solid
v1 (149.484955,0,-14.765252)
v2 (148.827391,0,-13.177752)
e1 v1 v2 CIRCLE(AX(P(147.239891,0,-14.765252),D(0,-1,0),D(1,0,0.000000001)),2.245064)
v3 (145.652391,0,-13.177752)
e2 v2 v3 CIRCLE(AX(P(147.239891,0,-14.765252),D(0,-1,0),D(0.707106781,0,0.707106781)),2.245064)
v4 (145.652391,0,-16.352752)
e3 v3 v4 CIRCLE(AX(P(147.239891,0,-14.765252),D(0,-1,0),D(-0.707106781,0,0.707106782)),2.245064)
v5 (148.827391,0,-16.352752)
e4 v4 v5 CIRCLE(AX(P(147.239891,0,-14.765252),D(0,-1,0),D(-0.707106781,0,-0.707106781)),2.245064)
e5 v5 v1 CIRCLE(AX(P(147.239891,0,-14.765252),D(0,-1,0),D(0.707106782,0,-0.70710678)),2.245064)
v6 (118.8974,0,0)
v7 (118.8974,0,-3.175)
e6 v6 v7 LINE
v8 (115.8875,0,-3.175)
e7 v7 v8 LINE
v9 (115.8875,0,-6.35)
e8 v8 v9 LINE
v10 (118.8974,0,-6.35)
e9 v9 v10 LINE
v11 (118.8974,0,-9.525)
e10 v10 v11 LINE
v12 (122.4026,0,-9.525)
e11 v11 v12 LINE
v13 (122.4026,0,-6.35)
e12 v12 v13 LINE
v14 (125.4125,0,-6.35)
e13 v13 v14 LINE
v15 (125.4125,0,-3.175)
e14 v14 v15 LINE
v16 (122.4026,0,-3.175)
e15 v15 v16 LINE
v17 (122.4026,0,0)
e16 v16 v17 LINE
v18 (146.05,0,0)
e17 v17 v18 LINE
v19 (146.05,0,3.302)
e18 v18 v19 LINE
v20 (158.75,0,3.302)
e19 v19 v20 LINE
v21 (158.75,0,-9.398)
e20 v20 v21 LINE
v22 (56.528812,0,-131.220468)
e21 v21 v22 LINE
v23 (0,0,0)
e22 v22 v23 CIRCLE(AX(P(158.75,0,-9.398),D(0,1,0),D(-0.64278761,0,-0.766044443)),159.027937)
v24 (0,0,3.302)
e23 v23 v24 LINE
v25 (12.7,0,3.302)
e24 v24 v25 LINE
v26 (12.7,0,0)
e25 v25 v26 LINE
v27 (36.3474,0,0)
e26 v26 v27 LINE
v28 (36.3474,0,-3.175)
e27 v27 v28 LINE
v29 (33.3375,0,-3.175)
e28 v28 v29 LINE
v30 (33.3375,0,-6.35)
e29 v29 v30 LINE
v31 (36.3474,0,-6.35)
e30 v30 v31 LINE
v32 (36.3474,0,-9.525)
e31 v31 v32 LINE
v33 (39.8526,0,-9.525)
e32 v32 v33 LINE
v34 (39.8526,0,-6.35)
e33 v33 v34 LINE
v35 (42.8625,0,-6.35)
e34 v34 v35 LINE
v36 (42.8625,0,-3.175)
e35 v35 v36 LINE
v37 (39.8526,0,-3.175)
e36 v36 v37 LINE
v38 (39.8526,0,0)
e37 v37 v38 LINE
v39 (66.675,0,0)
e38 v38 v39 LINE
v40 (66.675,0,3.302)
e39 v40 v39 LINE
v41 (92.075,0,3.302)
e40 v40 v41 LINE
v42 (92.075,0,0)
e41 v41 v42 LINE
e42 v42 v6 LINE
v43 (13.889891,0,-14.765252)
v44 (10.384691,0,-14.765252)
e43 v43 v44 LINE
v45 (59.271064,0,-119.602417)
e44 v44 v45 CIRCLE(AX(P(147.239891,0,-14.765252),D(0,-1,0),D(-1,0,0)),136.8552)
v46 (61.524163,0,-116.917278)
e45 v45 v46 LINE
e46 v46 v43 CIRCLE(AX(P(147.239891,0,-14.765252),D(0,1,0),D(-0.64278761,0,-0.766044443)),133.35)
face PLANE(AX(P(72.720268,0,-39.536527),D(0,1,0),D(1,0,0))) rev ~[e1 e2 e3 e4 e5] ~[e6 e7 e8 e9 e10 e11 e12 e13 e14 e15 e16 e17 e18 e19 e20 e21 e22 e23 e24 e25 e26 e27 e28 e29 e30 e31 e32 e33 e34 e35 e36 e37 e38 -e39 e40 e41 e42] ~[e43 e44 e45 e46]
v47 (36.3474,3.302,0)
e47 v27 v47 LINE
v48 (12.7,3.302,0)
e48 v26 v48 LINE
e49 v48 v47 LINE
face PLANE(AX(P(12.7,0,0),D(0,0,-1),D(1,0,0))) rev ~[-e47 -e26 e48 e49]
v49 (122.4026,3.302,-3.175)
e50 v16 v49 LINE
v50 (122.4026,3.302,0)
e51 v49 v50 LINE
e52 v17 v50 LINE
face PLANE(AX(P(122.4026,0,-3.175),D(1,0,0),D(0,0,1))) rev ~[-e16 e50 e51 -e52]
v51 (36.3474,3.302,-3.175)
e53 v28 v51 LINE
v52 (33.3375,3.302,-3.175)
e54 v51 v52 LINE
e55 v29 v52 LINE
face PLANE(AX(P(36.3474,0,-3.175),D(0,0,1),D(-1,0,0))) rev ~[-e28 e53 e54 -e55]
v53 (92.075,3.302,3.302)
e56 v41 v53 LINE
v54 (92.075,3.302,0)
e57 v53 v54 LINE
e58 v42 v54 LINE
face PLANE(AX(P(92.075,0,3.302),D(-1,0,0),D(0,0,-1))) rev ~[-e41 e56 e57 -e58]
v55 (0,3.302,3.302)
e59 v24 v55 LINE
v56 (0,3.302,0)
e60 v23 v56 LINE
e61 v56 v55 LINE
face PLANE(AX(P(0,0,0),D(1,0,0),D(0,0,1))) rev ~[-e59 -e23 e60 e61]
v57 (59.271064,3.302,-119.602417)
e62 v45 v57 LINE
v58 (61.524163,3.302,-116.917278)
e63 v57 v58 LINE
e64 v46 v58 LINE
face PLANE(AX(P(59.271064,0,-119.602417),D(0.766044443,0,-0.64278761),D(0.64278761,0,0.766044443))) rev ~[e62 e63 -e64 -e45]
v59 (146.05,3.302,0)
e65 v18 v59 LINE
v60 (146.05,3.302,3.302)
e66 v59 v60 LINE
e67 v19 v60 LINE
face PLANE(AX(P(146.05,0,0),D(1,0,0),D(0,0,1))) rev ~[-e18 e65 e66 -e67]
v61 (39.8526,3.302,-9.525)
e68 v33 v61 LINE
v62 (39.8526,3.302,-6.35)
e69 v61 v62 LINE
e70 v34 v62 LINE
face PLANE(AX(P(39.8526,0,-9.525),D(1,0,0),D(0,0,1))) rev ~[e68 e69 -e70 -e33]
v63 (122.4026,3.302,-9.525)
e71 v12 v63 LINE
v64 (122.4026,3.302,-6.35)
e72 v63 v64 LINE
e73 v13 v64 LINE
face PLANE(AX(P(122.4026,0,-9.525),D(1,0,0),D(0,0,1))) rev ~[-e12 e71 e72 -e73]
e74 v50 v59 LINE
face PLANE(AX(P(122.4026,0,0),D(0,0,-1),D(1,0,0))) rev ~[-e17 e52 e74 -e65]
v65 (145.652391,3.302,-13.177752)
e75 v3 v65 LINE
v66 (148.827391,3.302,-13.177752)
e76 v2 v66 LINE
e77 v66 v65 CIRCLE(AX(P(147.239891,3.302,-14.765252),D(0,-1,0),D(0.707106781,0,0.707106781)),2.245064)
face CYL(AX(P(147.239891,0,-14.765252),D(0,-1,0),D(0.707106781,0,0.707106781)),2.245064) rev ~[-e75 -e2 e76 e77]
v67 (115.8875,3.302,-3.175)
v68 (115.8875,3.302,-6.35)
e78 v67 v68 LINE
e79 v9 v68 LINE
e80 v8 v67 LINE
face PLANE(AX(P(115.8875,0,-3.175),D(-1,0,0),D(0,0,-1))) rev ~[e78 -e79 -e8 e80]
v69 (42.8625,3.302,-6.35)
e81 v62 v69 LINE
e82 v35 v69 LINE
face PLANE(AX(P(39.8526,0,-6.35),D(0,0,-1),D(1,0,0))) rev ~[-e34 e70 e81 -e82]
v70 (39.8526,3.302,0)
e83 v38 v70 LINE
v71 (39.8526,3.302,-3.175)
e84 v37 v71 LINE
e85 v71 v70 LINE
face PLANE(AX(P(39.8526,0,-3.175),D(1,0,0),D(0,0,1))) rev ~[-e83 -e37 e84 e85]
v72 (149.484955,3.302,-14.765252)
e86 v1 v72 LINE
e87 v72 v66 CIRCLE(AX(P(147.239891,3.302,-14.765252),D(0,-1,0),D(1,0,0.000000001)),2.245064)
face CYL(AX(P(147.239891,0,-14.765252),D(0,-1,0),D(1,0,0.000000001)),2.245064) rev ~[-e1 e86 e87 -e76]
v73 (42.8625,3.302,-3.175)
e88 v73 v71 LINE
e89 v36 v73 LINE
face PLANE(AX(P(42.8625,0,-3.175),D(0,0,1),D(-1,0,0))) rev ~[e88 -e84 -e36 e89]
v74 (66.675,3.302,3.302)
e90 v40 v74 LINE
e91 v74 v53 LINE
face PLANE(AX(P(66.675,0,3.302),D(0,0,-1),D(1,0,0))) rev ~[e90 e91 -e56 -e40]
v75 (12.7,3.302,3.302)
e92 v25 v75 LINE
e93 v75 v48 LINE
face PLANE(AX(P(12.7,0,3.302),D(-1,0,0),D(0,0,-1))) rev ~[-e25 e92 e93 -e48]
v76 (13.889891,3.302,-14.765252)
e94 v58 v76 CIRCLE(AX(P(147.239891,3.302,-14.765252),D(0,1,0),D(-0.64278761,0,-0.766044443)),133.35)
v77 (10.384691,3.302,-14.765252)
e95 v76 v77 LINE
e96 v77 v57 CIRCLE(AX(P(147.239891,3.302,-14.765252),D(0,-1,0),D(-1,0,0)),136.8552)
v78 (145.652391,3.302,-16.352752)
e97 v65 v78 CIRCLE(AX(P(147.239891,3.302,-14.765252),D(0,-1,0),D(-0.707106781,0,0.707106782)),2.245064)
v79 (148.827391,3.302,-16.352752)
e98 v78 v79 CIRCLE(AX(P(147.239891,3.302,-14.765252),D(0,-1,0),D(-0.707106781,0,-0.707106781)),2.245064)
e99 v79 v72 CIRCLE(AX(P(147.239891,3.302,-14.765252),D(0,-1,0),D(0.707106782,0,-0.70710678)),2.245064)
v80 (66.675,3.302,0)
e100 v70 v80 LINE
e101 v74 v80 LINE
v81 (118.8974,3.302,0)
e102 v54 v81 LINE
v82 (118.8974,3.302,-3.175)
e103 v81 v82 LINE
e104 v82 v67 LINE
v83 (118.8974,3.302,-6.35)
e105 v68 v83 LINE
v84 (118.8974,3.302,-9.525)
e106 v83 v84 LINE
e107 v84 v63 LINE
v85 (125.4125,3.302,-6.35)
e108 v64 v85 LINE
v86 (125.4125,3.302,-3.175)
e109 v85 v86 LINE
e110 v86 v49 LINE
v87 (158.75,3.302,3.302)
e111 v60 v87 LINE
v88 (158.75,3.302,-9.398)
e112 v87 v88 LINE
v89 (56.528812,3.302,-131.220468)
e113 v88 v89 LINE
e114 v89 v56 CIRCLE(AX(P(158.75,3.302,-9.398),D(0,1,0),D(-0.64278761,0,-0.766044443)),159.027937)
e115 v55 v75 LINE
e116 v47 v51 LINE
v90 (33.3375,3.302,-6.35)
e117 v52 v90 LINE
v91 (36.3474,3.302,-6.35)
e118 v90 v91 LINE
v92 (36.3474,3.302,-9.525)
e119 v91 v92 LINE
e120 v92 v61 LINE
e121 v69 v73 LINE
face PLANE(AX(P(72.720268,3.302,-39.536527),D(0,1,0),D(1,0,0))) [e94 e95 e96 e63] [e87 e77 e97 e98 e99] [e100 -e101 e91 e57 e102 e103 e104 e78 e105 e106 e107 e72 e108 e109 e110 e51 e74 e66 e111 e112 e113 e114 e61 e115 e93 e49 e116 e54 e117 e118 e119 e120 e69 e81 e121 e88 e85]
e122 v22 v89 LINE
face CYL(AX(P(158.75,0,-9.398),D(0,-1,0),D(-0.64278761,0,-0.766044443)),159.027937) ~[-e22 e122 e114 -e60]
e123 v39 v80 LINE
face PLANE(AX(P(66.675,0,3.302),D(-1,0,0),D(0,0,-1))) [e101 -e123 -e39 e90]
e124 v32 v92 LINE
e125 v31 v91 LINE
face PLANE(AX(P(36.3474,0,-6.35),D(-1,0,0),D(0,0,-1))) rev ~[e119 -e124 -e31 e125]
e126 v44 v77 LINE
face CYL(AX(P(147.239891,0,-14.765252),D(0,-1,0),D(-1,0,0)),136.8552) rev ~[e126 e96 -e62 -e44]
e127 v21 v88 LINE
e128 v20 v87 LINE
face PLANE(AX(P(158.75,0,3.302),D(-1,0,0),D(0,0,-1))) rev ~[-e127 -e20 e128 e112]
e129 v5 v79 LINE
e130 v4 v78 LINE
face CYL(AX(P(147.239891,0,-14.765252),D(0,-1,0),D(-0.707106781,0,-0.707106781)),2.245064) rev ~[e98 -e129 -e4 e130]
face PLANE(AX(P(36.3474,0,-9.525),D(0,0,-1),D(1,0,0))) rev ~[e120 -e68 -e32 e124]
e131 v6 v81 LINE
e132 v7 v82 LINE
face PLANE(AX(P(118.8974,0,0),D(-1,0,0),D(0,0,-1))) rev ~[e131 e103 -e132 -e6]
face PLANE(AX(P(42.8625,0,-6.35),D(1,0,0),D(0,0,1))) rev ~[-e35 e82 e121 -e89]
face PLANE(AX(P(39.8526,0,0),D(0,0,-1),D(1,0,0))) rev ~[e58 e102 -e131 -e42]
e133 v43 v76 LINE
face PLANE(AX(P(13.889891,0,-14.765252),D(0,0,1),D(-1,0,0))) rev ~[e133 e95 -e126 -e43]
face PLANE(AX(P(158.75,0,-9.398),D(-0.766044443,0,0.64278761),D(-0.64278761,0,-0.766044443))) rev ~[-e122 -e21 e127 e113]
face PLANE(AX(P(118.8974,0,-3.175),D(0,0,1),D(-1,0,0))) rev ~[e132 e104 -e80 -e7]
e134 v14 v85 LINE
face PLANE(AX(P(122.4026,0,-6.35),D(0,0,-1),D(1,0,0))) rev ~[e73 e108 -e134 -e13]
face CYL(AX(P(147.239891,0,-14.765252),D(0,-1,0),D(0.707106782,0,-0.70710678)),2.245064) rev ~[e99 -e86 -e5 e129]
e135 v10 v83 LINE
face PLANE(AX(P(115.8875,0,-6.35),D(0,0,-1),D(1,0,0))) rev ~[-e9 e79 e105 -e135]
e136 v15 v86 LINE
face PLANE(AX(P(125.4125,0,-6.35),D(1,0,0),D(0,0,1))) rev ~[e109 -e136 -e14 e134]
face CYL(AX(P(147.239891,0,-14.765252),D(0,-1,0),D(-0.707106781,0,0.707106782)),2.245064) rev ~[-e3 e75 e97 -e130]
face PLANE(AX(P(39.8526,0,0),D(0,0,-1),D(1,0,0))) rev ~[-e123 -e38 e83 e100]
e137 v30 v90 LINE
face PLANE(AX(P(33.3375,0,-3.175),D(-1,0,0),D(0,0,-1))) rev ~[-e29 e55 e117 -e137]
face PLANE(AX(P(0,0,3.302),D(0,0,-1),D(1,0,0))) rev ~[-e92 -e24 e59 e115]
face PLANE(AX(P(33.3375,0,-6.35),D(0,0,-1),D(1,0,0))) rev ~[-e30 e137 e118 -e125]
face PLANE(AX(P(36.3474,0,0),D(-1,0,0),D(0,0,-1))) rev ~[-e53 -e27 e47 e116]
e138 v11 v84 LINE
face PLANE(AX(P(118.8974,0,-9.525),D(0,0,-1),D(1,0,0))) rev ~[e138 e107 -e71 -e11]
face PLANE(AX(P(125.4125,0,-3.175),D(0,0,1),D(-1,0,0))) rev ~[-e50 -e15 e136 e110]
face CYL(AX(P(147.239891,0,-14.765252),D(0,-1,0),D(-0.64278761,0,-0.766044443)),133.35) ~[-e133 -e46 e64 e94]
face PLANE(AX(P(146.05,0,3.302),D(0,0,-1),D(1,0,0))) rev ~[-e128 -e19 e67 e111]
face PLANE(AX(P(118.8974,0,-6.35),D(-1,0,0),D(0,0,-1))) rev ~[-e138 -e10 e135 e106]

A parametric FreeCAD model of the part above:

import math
import FreeCAD as App
import Part
import Sketcher
from FreeCAD import Vector
Q = App.Units.Quantity

doc = App.newDocument("Part")
body = doc.addObject("PartDesign::Body", "Body")

# Sketch on XZ plane
sketch1 = doc.addObject("Sketcher::SketchObject", "Sketch")
body.addObject(sketch1)
sketch1.AttachmentSupport = (doc.XZ_Plane, [""])
sketch1.MapMode = "FlatFace"
sketch1.addGeometry([
    Part.LineSegment(Vector(12.7, 3.3, 0), Vector(12.7, 0, 0)),  # 0
    Part.LineSegment(Vector(12.7, 0, 0), Vector(36.3, 0, 0)),  # 1
    Part.LineSegment(Vector(36.3, 0, 0), Vector(36.3, -3.2, 0)),  # 2
    Part.LineSegment(Vector(36.3, -3.2, 0), Vector(33.3, -3.2, 0)),  # 3
    Part.LineSegment(Vector(33.3, -3.2, 0), Vector(33.3, -6.3, 0)),  # 4
    Part.LineSegment(Vector(33.3, -6.3, 0), Vector(36.3, -6.3, 0)),  # 5
    Part.LineSegment(Vector(36.3, -6.3, 0), Vector(36.3, -9.5, 0)),  # 6
    Part.LineSegment(Vector(36.3, -9.5, 0), Vector(39.9, -9.5, 0)),  # 7
    Part.LineSegment(Vector(39.9, -9.5, 0), Vector(39.9, -6.3, 0)),  # 8
    Part.LineSegment(Vector(39.9, -6.3, 0), Vector(42.9, -6.3, 0)),  # 9
    Part.LineSegment(Vector(42.9, -6.3, 0), Vector(42.9, -3.2, 0)),  # 10
    Part.LineSegment(Vector(42.9, -3.2, 0), Vector(39.9, -3.2, 0)),  # 11
    Part.LineSegment(Vector(39.9, -3.2, 0), Vector(39.9, 0, 0)),  # 12
    Part.LineSegment(Vector(39.9, 0, 0), Vector(66.7, 0, 0)),  # 13
    Part.LineSegment(Vector(66.7, 0, 0), Vector(66.7, 3.3, 0)),  # 14
    Part.LineSegment(Vector(66.7, 3.3, 0), Vector(92.1, 3.3, 0)),  # 15
    Part.LineSegment(Vector(92.1, 3.3, 0), Vector(92.1, 0, 0)),  # 16
    Part.LineSegment(Vector(92.1, 0, 0), Vector(118.9, 0, 0)),  # 17
    Part.LineSegment(Vector(118.9, 0, 0), Vector(118.9, -3.2, 0)),  # 18
    Part.LineSegment(Vector(118.9, -3.2, 0), Vector(115.9, -3.2, 0)),  # 19
    Part.LineSegment(Vector(115.9, -3.2, 0), Vector(115.9, -6.3, 0)),  # 20
    Part.LineSegment(Vector(115.9, -6.3, 0), Vector(118.9, -6.3, 0)),  # 21
    Part.LineSegment(Vector(118.9, -6.3, 0), Vector(118.9, -9.5, 0)),  # 22
    Part.LineSegment(Vector(118.9, -9.5, 0), Vector(122.4, -9.5, 0)),  # 23
    Part.LineSegment(Vector(122.4, -9.5, 0), Vector(122.4, -6.3, 0)),  # 24
    Part.LineSegment(Vector(122.4, -6.3, 0), Vector(125.4, -6.3, 0)),  # 25
    Part.LineSegment(Vector(125.4, -6.3, 0), Vector(125.4, -3.2, 0)),  # 26
    Part.LineSegment(Vector(125.4, -3.2, 0), Vector(122.4, -3.2, 0)),  # 27
    Part.LineSegment(Vector(122.4, -3.2, 0), Vector(122.4, 0, 0)),  # 28
    Part.LineSegment(Vector(122.4, 0, 0), Vector(146.1, 0, 0)),  # 29
    Part.LineSegment(Vector(146.1, 0, 0), Vector(146.1, 3.3, 0)),  # 30
    Part.LineSegment(Vector(146.1, 3.3, 0), Vector(158.8, 3.3, 0)),  # 31
    Part.LineSegment(Vector(158.8, 3.3, 0), Vector(158.8, -9.4, 0)),  # 32
    Part.LineSegment(Vector(158.8, -9.4, 0), Vector(56.5, -131.2, 0)),  # 33
    Part.ArcOfCircle(Part.Circle(Vector(158.8, -9.4, 0), Vector(0, 0, 1), 159), math.radians(177), math.radians(230)),  # 34
    Part.LineSegment(Vector(0, 0, 0), Vector(0, 3.3, 0)),  # 35
    Part.LineSegment(Vector(0, 3.3, 0), Vector(12.7, 3.3, 0)),  # 36
    Part.ArcOfCircle(Part.Circle(Vector(147.2, -14.8, 0), Vector(0, 0, 1), 2.2), math.radians(45), math.radians(135)),  # 37
    Part.ArcOfCircle(Part.Circle(Vector(147.2, -14.8, 0), Vector(0, 0, 1), 2.2), math.radians(135), math.radians(225)),  # 38
    Part.ArcOfCircle(Part.Circle(Vector(147.2, -14.8, 0), Vector(0, 0, 1), 2.2), math.radians(-135), math.radians(-45)),  # 39
    Part.ArcOfCircle(Part.Circle(Vector(147.2, -14.8, 0), Vector(0, 0, 1), 2.2), math.radians(-45), math.radians(0)),  # 40
    Part.ArcOfCircle(Part.Circle(Vector(147.2, -14.8, 0), Vector(0, 0, 1), 2.2), math.radians(0), math.radians(45)),  # 41
    Part.ArcOfCircle(Part.Circle(Vector(147.2, -14.8, 0), Vector(0, 0, 1), 133.3), math.radians(180), math.radians(230)),  # 42
    Part.LineSegment(Vector(13.9, -14.8, 0), Vector(10.4, -14.8, 0)),  # 43
    Part.ArcOfCircle(Part.Circle(Vector(147.2, -14.8, 0), Vector(0, 0, 1), 136.9), math.radians(180), math.radians(230)),  # 44
    Part.LineSegment(Vector(59.3, -119.6, 0), Vector(61.5, -116.9, 0)),  # 45
], False)
sketch1.addConstraint([
    Sketcher.Constraint("Coincident", 0, 2, 1, 1),
    Sketcher.Constraint("Coincident", 1, 2, 2, 1),
    Sketcher.Constraint("Coincident", 2, 2, 3, 1),
    Sketcher.Constraint("Coincident", 3, 2, 4, 1),
    Sketcher.Constraint("Coincident", 4, 2, 5, 1),
    Sketcher.Constraint("Coincident", 5, 2, 6, 1),
    Sketcher.Constraint("Coincident", 6, 2, 7, 1),
    Sketcher.Constraint("Coincident", 7, 2, 8, 1),
    Sketcher.Constraint("Coincident", 8, 2, 9, 1),
    Sketcher.Constraint("Coincident", 9, 2, 10, 1),
    Sketcher.Constraint("Coincident", 10, 2, 11, 1),
    Sketcher.Constraint("Coincident", 11, 2, 12, 1),
    Sketcher.Constraint("Coincident", 12, 2, 13, 1),
    Sketcher.Constraint("Coincident", 13, 2, 14, 1),
    Sketcher.Constraint("Coincident", 14, 2, 15, 1),
    Sketcher.Constraint("Coincident", 15, 2, 16, 1),
    Sketcher.Constraint("Coincident", 16, 2, 17, 1),
    Sketcher.Constraint("Coincident", 17, 2, 18, 1),
    Sketcher.Constraint("Coincident", 18, 2, 19, 1),
    Sketcher.Constraint("Coincident", 19, 2, 20, 1),
    Sketcher.Constraint("Coincident", 20, 2, 21, 1),
    Sketcher.Constraint("Coincident", 21, 2, 22, 1),
    Sketcher.Constraint("Coincident", 22, 2, 23, 1),
    Sketcher.Constraint("Coincident", 23, 2, 24, 1),
    Sketcher.Constraint("Coincident", 24, 2, 25, 1),
    Sketcher.Constraint("Coincident", 25, 2, 26, 1),
    Sketcher.Constraint("Coincident", 26, 2, 27, 1),
    Sketcher.Constraint("Coincident", 27, 2, 28, 1),
    Sketcher.Constraint("Coincident", 28, 2, 29, 1),
    Sketcher.Constraint("Coincident", 29, 2, 30, 1),
    Sketcher.Constraint("Coincident", 30, 2, 31, 1),
    Sketcher.Constraint("Coincident", 31, 2, 32, 1),
    Sketcher.Constraint("Coincident", 32, 2, 33, 1),
    Sketcher.Constraint("Coincident", 33, 2, 34, 2),
    Sketcher.Constraint("Coincident", 34, 1, 35, 1),
    Sketcher.Constraint("Coincident", 35, 2, 36, 1),
    Sketcher.Constraint("Coincident", 36, 2, 0, 1),
    Sketcher.Constraint("Tangent", 37, 2, 38, 1),
    Sketcher.Constraint("Tangent", 38, 2, 39, 1),
    Sketcher.Constraint("Tangent", 39, 2, 40, 1),
    Sketcher.Constraint("Tangent", 40, 2, 41, 1),
    Sketcher.Constraint("Tangent", 41, 2, 37, 1),
    Sketcher.Constraint("Coincident", 42, 1, 43, 1),
    Sketcher.Constraint("Coincident", 43, 2, 44, 1),
    Sketcher.Constraint("Coincident", 44, 2, 45, 1),
    Sketcher.Constraint("Coincident", 45, 2, 42, 2),
    Sketcher.Constraint("Vertical", 0),
    Sketcher.Constraint("Horizontal", 1),
    Sketcher.Constraint("Vertical", 2),
    Sketcher.Constraint("Horizontal", 3),
    Sketcher.Constraint("Vertical", 4),
    Sketcher.Constraint("Horizontal", 5),
    Sketcher.Constraint("Vertical", 6),
    Sketcher.Constraint("Horizontal", 7),
    Sketcher.Constraint("Vertical", 8),
    Sketcher.Constraint("Horizontal", 9),
    Sketcher.Constraint("Vertical", 10),
    Sketcher.Constraint("Horizontal", 11),
    Sketcher.Constraint("Vertical", 12),
    Sketcher.Constraint("Horizontal", 13),
    Sketcher.Constraint("Vertical", 14),
    Sketcher.Constraint("Horizontal", 15),
    Sketcher.Constraint("Vertical", 16),
    Sketcher.Constraint("Horizontal", 17),
    Sketcher.Constraint("Vertical", 18),
    Sketcher.Constraint("Horizontal", 19),
    Sketcher.Constraint("Vertical", 20),
    Sketcher.Constraint("Horizontal", 21),
    Sketcher.Constraint("Vertical", 22),
    Sketcher.Constraint("Horizontal", 23),
    Sketcher.Constraint("Vertical", 24),
    Sketcher.Constraint("Horizontal", 25),
    Sketcher.Constraint("Vertical", 26),
    Sketcher.Constraint("Horizontal", 27),
    Sketcher.Constraint("Vertical", 28),
    Sketcher.Constraint("Horizontal", 29),
    Sketcher.Constraint("Vertical", 30),
    Sketcher.Constraint("Horizontal", 31),
    Sketcher.Constraint("Vertical", 32),
    Sketcher.Constraint("Vertical", 35),
    Sketcher.Constraint("Horizontal", 36),
    Sketcher.Constraint("Horizontal", 43),
    Sketcher.Constraint("Coincident", 34, 1, -1, 1),
    Sketcher.Constraint("Coincident", 39, 3, 37, 3),
    Sketcher.Constraint("Coincident", 42, 3, 37, 3),
    Sketcher.Constraint("Coincident", 44, 3, 37, 3),
    Sketcher.Constraint("Coincident", 32, 2, 34, 3),
    Sketcher.Constraint("PointOnObject", 0, 2, -1),
    Sketcher.Constraint("PointOnObject", 12, 2, -1),
    Sketcher.Constraint("PointOnObject", 16, 2, -1),
    Sketcher.Constraint("PointOnObject", 28, 2, -1),
    Sketcher.Constraint("Parallel", 33, 45),
    Sketcher.Constraint("Horizontal", 5, 2, 8, 2),
    Sketcher.Constraint("Horizontal", 3, 2, 10, 2),
    Sketcher.Constraint("Horizontal", 11, 2, 18, 2),
    Sketcher.Constraint("Horizontal", 9, 2, 20, 2),
    Sketcher.Constraint("Horizontal", 7, 2, 22, 2),
    Sketcher.Constraint("Horizontal", 21, 2, 24, 2),
    Sketcher.Constraint("Horizontal", 19, 2, 26, 2),
    Sketcher.Constraint("Horizontal", 15, 2, 30, 2),
    Sketcher.Constraint("Horizontal", 31, 2, 35, 2),
    Sketcher.Constraint("Horizontal", 38, 2, 39, 2),
    Sketcher.Constraint("Horizontal", 44, 3, 40, 2),
    Sketcher.Constraint("Horizontal", 37, 2, 41, 2),
    Sketcher.Constraint("Horizontal", 40, 2, 42, 1),
    Sketcher.Constraint("Vertical", 2, 2, 5, 2),
    Sketcher.Constraint("Vertical", 8, 2, 11, 2),
    Sketcher.Constraint("Vertical", 18, 2, 21, 2),
    Sketcher.Constraint("Vertical", 24, 2, 27, 2),
    Sketcher.Constraint("Vertical", 37, 2, 38, 2),
    Sketcher.Constraint("Equal", 5, 9),
    Sketcher.Constraint("Equal", 13, 17),
    Sketcher.Constraint("Equal", 11, 19),
    Sketcher.Constraint("Equal", 7, 23),
    Sketcher.Constraint("Equal", 21, 25),
    Sketcher.Constraint("Equal", 1, 29),
    Sketcher.Constraint("Equal", 31, 36),
    Sketcher.Constraint("Equal", 23, 43),
    Sketcher.Constraint("Equal", 2, 4),
    Sketcher.Constraint("Equal", 4, 6),
    Sketcher.Constraint("Equal", 36, 32),
    Sketcher.Constraint("DistanceX", 15, 1, 15, 2, Q("1 in")),
    Sketcher.Constraint("Radius", 42, Q("5.25 in")),
    Sketcher.Constraint("DistanceX", 31, 1, 31, 2, Q("0.5 in")),
    Sketcher.Constraint("Angle", 33, Q("-130 deg")),
    Sketcher.Constraint("Radius", 44, Q("5.388 in")),
    Sketcher.Constraint("DistanceY", 0, 2, 0, 1, Q("0.13 in")),
    Sketcher.Constraint("DistanceX", 1, 1, 1, 2, Q("0.931 in")),
    Sketcher.Constraint("DistanceX", 13, 1, 13, 2, Q("1.056 in")),
    Sketcher.Constraint("DistanceY", 2, 2, 2, 1, Q("0.125 in")),
    Sketcher.Constraint("DistanceX", 3, 2, 3, 1, Q("0.1185 in")),
    Sketcher.Constraint("DistanceX", 37, 2, 40, 3, Q("0.0625 in")),
    Sketcher.Constraint("DistanceY", 40, 3, 37, 2, Q("0.0625 in")),
    Sketcher.Constraint("DistanceX", -1, 1, 37, 3, 147.239891),
    Sketcher.Constraint("DistanceY", 37, 3, -1, 1, 14.765252),
    Sketcher.Constraint("DistanceY", 45, 2, -1, 1, 116.917278),
])
pad1 = doc.addObject("PartDesign::Pad", "Pad")
body.addObject(pad1)
pad1.Profile = sketch1
pad1.Length = Q("0.13 in")
pad1.Reversed = True

doc.recompute()
